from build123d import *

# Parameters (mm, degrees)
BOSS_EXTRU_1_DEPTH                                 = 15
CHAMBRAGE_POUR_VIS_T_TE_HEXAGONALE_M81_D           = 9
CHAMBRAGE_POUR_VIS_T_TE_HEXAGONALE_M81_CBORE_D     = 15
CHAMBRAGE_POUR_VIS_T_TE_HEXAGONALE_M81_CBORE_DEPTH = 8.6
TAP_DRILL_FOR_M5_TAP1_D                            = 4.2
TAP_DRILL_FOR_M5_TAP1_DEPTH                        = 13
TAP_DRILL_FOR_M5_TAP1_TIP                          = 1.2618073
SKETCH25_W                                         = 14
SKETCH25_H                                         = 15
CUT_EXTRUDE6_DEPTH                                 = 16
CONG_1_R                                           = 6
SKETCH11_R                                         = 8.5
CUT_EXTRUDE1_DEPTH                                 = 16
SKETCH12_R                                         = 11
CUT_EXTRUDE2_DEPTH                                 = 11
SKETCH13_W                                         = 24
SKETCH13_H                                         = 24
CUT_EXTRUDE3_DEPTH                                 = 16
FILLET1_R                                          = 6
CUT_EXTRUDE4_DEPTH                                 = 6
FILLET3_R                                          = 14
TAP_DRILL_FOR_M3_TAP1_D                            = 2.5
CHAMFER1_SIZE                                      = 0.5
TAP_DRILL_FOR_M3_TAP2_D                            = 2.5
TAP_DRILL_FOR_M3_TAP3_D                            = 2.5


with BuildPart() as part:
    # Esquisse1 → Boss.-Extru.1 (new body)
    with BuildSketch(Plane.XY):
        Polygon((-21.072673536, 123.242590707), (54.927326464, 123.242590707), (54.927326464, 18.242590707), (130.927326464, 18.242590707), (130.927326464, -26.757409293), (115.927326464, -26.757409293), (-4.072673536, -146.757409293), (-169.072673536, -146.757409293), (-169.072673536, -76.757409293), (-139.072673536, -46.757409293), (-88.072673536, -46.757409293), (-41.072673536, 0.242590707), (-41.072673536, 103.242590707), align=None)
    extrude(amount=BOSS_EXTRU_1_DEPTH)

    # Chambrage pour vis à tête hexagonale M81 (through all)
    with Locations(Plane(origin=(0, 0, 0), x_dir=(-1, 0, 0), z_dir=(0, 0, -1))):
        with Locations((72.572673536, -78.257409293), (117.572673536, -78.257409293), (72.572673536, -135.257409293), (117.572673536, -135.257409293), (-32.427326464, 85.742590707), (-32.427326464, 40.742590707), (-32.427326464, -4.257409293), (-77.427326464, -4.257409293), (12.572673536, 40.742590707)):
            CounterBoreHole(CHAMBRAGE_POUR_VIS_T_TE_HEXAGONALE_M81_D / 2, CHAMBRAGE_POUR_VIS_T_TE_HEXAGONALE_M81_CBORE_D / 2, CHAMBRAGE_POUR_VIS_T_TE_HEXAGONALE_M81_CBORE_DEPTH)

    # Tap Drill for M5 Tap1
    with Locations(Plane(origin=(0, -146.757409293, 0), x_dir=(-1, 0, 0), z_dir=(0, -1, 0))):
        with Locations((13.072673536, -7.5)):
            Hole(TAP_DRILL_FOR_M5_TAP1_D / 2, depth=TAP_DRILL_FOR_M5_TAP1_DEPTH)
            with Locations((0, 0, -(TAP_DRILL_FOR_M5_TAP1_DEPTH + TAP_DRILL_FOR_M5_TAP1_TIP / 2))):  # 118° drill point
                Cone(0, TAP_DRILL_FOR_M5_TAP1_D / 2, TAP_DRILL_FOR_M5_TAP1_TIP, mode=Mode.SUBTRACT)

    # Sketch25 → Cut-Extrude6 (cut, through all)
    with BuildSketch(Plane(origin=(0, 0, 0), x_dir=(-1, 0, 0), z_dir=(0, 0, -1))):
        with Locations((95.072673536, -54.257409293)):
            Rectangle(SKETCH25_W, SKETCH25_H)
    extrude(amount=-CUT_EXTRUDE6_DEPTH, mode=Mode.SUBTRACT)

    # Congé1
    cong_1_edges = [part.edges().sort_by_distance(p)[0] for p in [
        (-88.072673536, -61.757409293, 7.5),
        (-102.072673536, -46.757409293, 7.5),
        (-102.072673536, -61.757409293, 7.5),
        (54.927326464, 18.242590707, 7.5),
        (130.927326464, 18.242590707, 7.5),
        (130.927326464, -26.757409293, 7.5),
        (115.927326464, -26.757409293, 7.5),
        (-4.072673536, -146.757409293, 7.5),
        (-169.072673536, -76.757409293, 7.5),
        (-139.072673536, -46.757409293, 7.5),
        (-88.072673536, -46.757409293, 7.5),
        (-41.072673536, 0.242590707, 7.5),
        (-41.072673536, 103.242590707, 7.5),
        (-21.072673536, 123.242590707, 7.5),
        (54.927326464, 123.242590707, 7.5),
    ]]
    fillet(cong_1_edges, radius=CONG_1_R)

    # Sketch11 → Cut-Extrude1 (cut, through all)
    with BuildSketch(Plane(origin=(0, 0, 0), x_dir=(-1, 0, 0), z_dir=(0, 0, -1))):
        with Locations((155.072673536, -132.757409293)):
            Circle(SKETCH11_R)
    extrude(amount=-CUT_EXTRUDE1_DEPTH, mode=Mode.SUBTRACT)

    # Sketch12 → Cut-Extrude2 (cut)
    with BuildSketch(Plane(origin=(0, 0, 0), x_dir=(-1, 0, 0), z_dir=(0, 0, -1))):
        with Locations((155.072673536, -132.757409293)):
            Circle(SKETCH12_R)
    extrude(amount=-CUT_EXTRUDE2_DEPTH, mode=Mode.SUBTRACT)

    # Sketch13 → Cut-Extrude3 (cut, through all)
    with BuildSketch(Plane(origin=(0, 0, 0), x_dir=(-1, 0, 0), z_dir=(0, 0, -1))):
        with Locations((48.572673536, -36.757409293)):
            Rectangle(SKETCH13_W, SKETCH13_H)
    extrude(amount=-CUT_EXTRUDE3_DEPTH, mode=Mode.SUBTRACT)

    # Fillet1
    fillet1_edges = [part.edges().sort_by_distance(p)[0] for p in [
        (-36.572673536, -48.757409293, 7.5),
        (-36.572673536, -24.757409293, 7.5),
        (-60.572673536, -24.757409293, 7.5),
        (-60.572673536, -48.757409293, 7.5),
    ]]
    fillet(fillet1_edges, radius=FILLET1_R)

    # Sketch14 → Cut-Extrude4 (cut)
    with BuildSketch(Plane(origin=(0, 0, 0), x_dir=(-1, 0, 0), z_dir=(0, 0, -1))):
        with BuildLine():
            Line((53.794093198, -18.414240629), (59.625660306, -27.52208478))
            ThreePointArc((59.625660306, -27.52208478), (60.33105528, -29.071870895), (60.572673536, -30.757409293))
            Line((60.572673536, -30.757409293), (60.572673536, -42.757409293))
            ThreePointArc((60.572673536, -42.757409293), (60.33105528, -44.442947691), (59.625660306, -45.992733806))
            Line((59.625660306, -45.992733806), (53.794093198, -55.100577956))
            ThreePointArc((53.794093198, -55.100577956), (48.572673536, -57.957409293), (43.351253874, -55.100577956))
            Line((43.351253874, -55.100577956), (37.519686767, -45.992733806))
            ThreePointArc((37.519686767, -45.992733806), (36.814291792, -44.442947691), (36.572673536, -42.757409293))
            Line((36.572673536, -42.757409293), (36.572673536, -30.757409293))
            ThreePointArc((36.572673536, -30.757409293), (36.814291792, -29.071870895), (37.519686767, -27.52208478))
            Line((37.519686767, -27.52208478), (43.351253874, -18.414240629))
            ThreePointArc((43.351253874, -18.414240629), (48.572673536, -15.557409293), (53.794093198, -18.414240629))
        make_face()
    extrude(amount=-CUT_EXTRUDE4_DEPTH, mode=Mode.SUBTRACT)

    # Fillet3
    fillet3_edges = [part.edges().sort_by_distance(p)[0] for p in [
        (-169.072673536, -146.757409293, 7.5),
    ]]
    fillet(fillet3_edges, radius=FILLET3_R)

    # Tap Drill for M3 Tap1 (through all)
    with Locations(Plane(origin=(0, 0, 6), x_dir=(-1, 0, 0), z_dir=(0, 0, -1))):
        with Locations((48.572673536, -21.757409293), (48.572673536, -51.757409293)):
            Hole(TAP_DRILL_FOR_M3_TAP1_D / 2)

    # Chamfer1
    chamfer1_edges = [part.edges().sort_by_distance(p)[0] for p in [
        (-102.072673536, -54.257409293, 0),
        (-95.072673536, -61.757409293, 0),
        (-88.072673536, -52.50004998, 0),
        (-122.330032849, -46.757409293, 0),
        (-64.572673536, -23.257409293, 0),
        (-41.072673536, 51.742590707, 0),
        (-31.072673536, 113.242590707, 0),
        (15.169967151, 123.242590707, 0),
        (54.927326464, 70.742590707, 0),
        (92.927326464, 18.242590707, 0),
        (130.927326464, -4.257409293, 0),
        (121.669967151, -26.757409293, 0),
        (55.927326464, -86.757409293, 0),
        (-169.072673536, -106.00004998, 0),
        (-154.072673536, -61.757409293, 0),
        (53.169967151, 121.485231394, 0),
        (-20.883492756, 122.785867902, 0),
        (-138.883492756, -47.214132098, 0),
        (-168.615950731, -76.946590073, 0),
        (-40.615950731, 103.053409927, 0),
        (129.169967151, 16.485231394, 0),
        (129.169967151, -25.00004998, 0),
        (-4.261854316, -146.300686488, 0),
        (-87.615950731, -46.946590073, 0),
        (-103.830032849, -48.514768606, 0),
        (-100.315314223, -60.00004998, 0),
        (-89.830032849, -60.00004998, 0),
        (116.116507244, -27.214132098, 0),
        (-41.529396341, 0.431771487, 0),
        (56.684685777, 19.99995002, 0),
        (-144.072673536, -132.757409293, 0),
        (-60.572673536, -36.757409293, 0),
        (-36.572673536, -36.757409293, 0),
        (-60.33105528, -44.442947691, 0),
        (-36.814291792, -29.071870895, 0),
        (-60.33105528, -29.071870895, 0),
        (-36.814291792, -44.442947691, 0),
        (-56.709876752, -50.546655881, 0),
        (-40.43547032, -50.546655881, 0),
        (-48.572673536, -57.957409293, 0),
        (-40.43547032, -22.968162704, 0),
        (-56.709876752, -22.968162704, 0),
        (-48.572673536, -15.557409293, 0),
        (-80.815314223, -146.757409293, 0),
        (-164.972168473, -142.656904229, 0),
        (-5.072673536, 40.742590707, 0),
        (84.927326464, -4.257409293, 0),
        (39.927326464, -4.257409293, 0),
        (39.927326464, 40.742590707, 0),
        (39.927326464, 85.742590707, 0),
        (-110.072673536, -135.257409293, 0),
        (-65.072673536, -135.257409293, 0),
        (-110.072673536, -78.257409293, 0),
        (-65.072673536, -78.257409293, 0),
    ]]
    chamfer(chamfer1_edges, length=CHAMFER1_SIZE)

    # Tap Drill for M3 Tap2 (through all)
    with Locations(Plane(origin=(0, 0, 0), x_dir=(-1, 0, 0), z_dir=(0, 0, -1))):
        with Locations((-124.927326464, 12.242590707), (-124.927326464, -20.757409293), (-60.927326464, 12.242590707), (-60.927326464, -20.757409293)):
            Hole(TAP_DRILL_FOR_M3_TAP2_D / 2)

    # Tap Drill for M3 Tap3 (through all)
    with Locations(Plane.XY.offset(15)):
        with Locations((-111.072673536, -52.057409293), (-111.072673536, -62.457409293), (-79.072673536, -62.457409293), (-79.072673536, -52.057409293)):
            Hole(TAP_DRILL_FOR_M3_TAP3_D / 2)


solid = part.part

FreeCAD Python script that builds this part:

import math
import FreeCAD as App
import Part
import Sketcher
from FreeCAD import Vector


def edges_at(feature, points):
    """Names of the edges that pass closest to the given points."""
    edges = feature.Shape.Edges
    near = lambda p: min(range(len(edges)), key=lambda i: edges[i].distToShape(Part.Vertex(*p))[0])
    return sorted({f"Edge{near(p) + 1}" for p in points})

doc = App.newDocument("Part")
body = doc.addObject("PartDesign::Body", "Body")

# Sketch on XY plane
sketch1 = doc.addObject("Sketcher::SketchObject", "Sketch")
body.addObject(sketch1)
sketch1.AttachmentSupport = (doc.XY_Plane, [""])
sketch1.MapMode = "FlatFace"
sketch1.addGeometry(Part.LineSegment(Vector(54.927326, 123.242591, 0), Vector(-21.072674, 123.242591, 0)), False)
sketch1.addGeometry(Part.LineSegment(Vector(-21.072674, 123.242591, 0), Vector(-41.072674, 103.242591, 0)), False)
sketch1.addGeometry(Part.LineSegment(Vector(-41.072674, 103.242591, 0), Vector(-41.072674, 0.242591, 0)), False)
sketch1.addGeometry(Part.LineSegment(Vector(-41.072674, 0.242591, 0), Vector(-88.072674, -46.757409, 0)), False)
sketch1.addGeometry(Part.LineSegment(Vector(-88.072674, -46.757409, 0), Vector(-139.072674, -46.757409, 0)), False)
sketch1.addGeometry(Part.LineSegment(Vector(-139.072674, -46.757409, 0), Vector(-169.072674, -76.757409, 0)), False)
sketch1.addGeometry(Part.LineSegment(Vector(-169.072674, -76.757409, 0), Vector(-169.072674, -146.757409, 0)), False)
sketch1.addGeometry(Part.LineSegment(Vector(-169.072674, -146.757409, 0), Vector(-4.072674, -146.757409, 0)), False)
sketch1.addGeometry(Part.LineSegment(Vector(-4.072674, -146.757409, 0), Vector(115.927326, -26.757409, 0)), False)
sketch1.addGeometry(Part.LineSegment(Vector(115.927326, -26.757409, 0), Vector(130.927326, -26.757409, 0)), False)
sketch1.addGeometry(Part.LineSegment(Vector(130.927326, -26.757409, 0), Vector(130.927326, 18.242591, 0)), False)
sketch1.addGeometry(Part.LineSegment(Vector(130.927326, 18.242591, 0), Vector(54.927326, 18.242591, 0)), False)
sketch1.addGeometry(Part.LineSegment(Vector(54.927326, 18.242591, 0), Vector(54.927326, 123.242591, 0)), False)
sketch1.addConstraint(Sketcher.Constraint("Coincident", 0, 2, 1, 1))
sketch1.addConstraint(Sketcher.Constraint("Coincident", 1, 2, 2, 1))
sketch1.addConstraint(Sketcher.Constraint("Coincident", 2, 2, 3, 1))
sketch1.addConstraint(Sketcher.Constraint("Coincident", 3, 2, 4, 1))
sketch1.addConstraint(Sketcher.Constraint("Coincident", 4, 2, 5, 1))
sketch1.addConstraint(Sketcher.Constraint("Coincident", 5, 2, 6, 1))
sketch1.addConstraint(Sketcher.Constraint("Coincident", 6, 2, 7, 1))
sketch1.addConstraint(Sketcher.Constraint("Coincident", 7, 2, 8, 1))
sketch1.addConstraint(Sketcher.Constraint("Coincident", 8, 2, 9, 1))
sketch1.addConstraint(Sketcher.Constraint("Coincident", 9, 2, 10, 1))
sketch1.addConstraint(Sketcher.Constraint("Coincident", 10, 2, 11, 1))
sketch1.addConstraint(Sketcher.Constraint("Coincident", 11, 2, 12, 1))
sketch1.addConstraint(Sketcher.Constraint("Coincident", 12, 2, 0, 1))
sketch1.addConstraint(Sketcher.Constraint("Horizontal", 0))
sketch1.addConstraint(Sketcher.Constraint("Vertical", 2))
sketch1.addConstraint(Sketcher.Constraint("Horizontal", 4))
sketch1.addConstraint(Sketcher.Constraint("Vertical", 6))
sketch1.addConstraint(Sketcher.Constraint("Horizontal", 7))
sketch1.addConstraint(Sketcher.Constraint("Horizontal", 9))
sketch1.addConstraint(Sketcher.Constraint("Vertical", 10))
sketch1.addConstraint(Sketcher.Constraint("Horizontal", 11))
sketch1.addConstraint(Sketcher.Constraint("Vertical", 12))
sketch1.addConstraint(Sketcher.Constraint("Parallel", 1, 3))
sketch1.addConstraint(Sketcher.Constraint("Parallel", 3, 5))
sketch1.addConstraint(Sketcher.Constraint("Parallel", 5, 8))
sketch1.addConstraint(Sketcher.Constraint("Equal", 0, 11))
sketch1.addConstraint(Sketcher.Constraint("DistanceX", 0, 2, 0, 1, 76.0))
sketch1.addConstraint(Sketcher.Constraint("DistanceX", 4, 2, 4, 1, 51.0))
sketch1.addConstraint(Sketcher.Constraint("DistanceX", 7, 1, 7, 2, 165.0))
sketch1.addConstraint(Sketcher.Constraint("DistanceX", 9, 1, 9, 2, 15.0))
sketch1.addConstraint(Sketcher.Constraint("DistanceY", 2, 2, 2, 1, 103.0))
sketch1.addConstraint(Sketcher.Constraint("DistanceY", 6, 2, 6, 1, 70.0))
sketch1.addConstraint(Sketcher.Constraint("DistanceY", 10, 1, 10, 2, 45.0))
sketch1.addConstraint(Sketcher.Constraint("DistanceY", 12, 1, 12, 2, 105.0))
sketch1.addConstraint(Sketcher.Constraint("DistanceX", 1, 2, 0, 2, 20.0))
sketch1.addConstraint(Sketcher.Constraint("DistanceX", 3, 2, 2, 2, 47.0))
sketch1.addConstraint(Sketcher.Constraint("DistanceX", 5, 2, 4, 2, 30.0))
sketch1.addConstraint(Sketcher.Constraint("DistanceY", -1, 1, 0, 2, 123.242591))
sketch1.addConstraint(Sketcher.Constraint("DistanceX", 0, 2, -1, 1, 21.072674))
pad1 = doc.addObject("PartDesign::Pad", "Pad")
body.addObject(pad1)
pad1.Profile = sketch1
pad1.Length = 15

# Sketch on XY plane
sketch2 = doc.addObject("Sketcher::SketchObject", "Sketch001")
body.addObject(sketch2)
sketch2.AttachmentSupport = (doc.XY_Plane, [""])
sketch2.MapMode = "FlatFace"
sketch2.addGeometry(Part.Circle(Vector(-72.572674, -78.257409, 0), Vector(0, 0, 1), 4.5), False)
sketch2.addGeometry(Part.Circle(Vector(-117.572674, -78.257409, 0), Vector(0, 0, 1), 4.5), False)
sketch2.addGeometry(Part.Circle(Vector(-72.572674, -135.257409, 0), Vector(0, 0, 1), 4.5), False)
sketch2.addGeometry(Part.Circle(Vector(-117.572674, -135.257409, 0), Vector(0, 0, 1), 4.5), False)
sketch2.addGeometry(Part.Circle(Vector(32.427326, 85.742591, 0), Vector(0, 0, 1), 4.5), False)
sketch2.addGeometry(Part.Circle(Vector(32.427326, 40.742591, 0), Vector(0, 0, 1), 4.5), False)
sketch2.addGeometry(Part.Circle(Vector(32.427326, -4.257409, 0), Vector(0, 0, 1), 4.5), False)
sketch2.addGeometry(Part.Circle(Vector(77.427326, -4.257409, 0), Vector(0, 0, 1), 4.5), False)
sketch2.addGeometry(Part.Circle(Vector(-12.572674, 40.742591, 0), Vector(0, 0, 1), 4.5), False)
sketch2.addConstraint(Sketcher.Constraint("Equal", 0, 1))
sketch2.addConstraint(Sketcher.Constraint("Equal", 1, 2))
sketch2.addConstraint(Sketcher.Constraint("Equal", 2, 3))
sketch2.addConstraint(Sketcher.Constraint("Equal", 3, 4))
sketch2.addConstraint(Sketcher.Constraint("Equal", 4, 5))
sketch2.addConstraint(Sketcher.Constraint("Equal", 5, 6))
sketch2.addConstraint(Sketcher.Constraint("Equal", 6, 7))
sketch2.addConstraint(Sketcher.Constraint("Equal", 7, 8))
sketch2.addConstraint(Sketcher.Constraint("Horizontal", 0, 3, 1, 3))
sketch2.addConstraint(Sketcher.Constraint("Horizontal", 2, 3, 3, 3))
sketch2.addConstraint(Sketcher.Constraint("Horizontal", 6, 3, 7, 3))
sketch2.addConstraint(Sketcher.Constraint("Horizontal", 5, 3, 8, 3))
sketch2.addConstraint(Sketcher.Constraint("Vertical", 0, 3, 2, 3))
sketch2.addConstraint(Sketcher.Constraint("Vertical", 1, 3, 3, 3))
sketch2.addConstraint(Sketcher.Constraint("Vertical", 4, 3, 5, 3))
sketch2.addConstraint(Sketcher.Constraint("Vertical", 5, 3, 6, 3))
sketch2.addConstraint(Sketcher.Constraint("Diameter", 0, 9.0))
sketch2.addConstraint(Sketcher.Constraint("DistanceX", 1, 3, 0, 3, 45.0))
sketch2.addConstraint(Sketcher.Constraint("DistanceY", 2, 3, 0, 3, 57.0))
sketch2.addConstraint(Sketcher.Constraint("DistanceX", 0, 3, 4, 3, 105.0))
sketch2.addConstraint(Sketcher.Constraint("DistanceY", 0, 3, 4, 3, 164.0))
sketch2.addConstraint(Sketcher.Constraint("DistanceY", 5, 3, 4, 3, 45.0))
sketch2.addConstraint(Sketcher.Constraint("DistanceY", 6, 3, 5, 3, 45.0))
sketch2.addConstraint(Sketcher.Constraint("DistanceX", 6, 3, 7, 3, 45.0))
sketch2.addConstraint(Sketcher.Constraint("DistanceX", 8, 3, 5, 3, 45.0))
sketch2.addConstraint(Sketcher.Constraint("DistanceY", 0, 3, -1, 1, 78.257409))
sketch2.addConstraint(Sketcher.Constraint("DistanceX", 0, 3, -1, 1, 72.572674))
doc.recompute()
hole = doc.addObject("PartDesign::Hole", "Hole")
body.addObject(hole)
hole.Profile = sketch2
hole.ThreadType = "None"
hole.Diameter = 9
hole.DepthType = "ThroughAll"
hole.HoleCutType = "Counterbore"
hole.HoleCutDiameter = 15
hole.HoleCutDepth = 8.6
hole.Reversed = True

# Sketch on XZ plane
sketch3 = doc.addObject("Sketcher::SketchObject", "Sketch002")
body.addObject(sketch3)
sketch3.AttachmentSupport = (doc.XZ_Plane, [""])
sketch3.MapMode = "FlatFace"
sketch3.AttachmentOffset = App.Placement(Vector(0, 0, 146.757409), App.Rotation())
sketch3.addGeometry(Part.Circle(Vector(-13.072674, 7.5, 0), Vector(0, 0, 1), 2.1), False)
sketch3.addConstraint(Sketcher.Constraint("Diameter", 0, 4.2))
sketch3.addConstraint(Sketcher.Constraint("DistanceY", -1, 1, 0, 3, 7.5))
sketch3.addConstraint(Sketcher.Constraint("DistanceX", 0, 3, -1, 1, 13.072674))
doc.recompute()
hole2 = doc.addObject("PartDesign::Hole", "Hole001")
body.addObject(hole2)
hole2.Profile = sketch3
hole2.ThreadType = "None"
hole2.Diameter = 4.2
hole2.DepthType = "Dimension"
hole2.Depth = 13
hole2.DrillPoint = "Angled"
hole2.DrillPointAngle = 118

# Sketch on XY plane
sketch4 = doc.addObject("Sketcher::SketchObject", "Sketch003")
body.addObject(sketch4)
sketch4.AttachmentSupport = (doc.XY_Plane, [""])
sketch4.MapMode = "FlatFace"
sketch4.addGeometry(Part.LineSegment(Vector(-88.072674, -46.757409, 0), Vector(-88.072674, -61.757409, 0)), False)
sketch4.addGeometry(Part.LineSegment(Vector(-88.072674, -61.757409, 0), Vector(-102.072674, -61.757409, 0)), False)
sketch4.addGeometry(Part.LineSegment(Vector(-102.072674, -61.757409, 0), Vector(-102.072674, -46.757409, 0)), False)
sketch4.addGeometry(Part.LineSegment(Vector(-102.072674, -46.757409, 0), Vector(-88.072674, -46.757409, 0)), False)
sketch4.addConstraint(Sketcher.Constraint("Coincident", 0, 2, 1, 1))
sketch4.addConstraint(Sketcher.Constraint("Coincident", 1, 2, 2, 1))
sketch4.addConstraint(Sketcher.Constraint("Coincident", 2, 2, 3, 1))
sketch4.addConstraint(Sketcher.Constraint("Coincident", 3, 2, 0, 1))
sketch4.addConstraint(Sketcher.Constraint("Vertical", 0))
sketch4.addConstraint(Sketcher.Constraint("Horizontal", 1))
sketch4.addConstraint(Sketcher.Constraint("Vertical", 2))
sketch4.addConstraint(Sketcher.Constraint("Horizontal", 3))
sketch4.addConstraint(Sketcher.Constraint("DistanceX", 1, 2, 1, 1, 14.0))
sketch4.addConstraint(Sketcher.Constraint("DistanceY", 0, 2, 0, 1, 15.0))
sketch4.addConstraint(Sketcher.Constraint("DistanceY", 0, 2, -1, 1, 61.757409))
sketch4.addConstraint(Sketcher.Constraint("DistanceX", 0, 2, -1, 1, 88.072674))
pocket1 = doc.addObject("PartDesign::Pocket", "Pocket")
body.addObject(pocket1)
pocket1.Profile = sketch4
pocket1.Type = "ThroughAll"
pocket1.Reversed = True
doc.recompute()

fillet = doc.addObject("PartDesign::Fillet", "Fillet")
body.addObject(fillet)
fillet.Base = (pocket1, edges_at(pocket1, [
    (-88.073, -61.757, 7.5),
    (-102.073, -46.757, 7.5),
    (-102.073, -61.757, 7.5),
    (54.927, 18.243, 7.5),
    (130.927, 18.243, 7.5),
    (130.927, -26.757, 7.5),
    (115.927, -26.757, 7.5),
    (-4.073, -146.757, 7.5),
    (-169.073, -76.757, 7.5),
    (-139.073, -46.757, 7.5),
    (-88.073, -46.757, 7.5),
    (-41.073, 0.243, 7.5),
    (-41.073, 103.243, 7.5),
    (-21.073, 123.243, 7.5),
    (54.927, 123.243, 7.5),
]))
fillet.Radius = 6

# Sketch on XY plane
sketch5 = doc.addObject("Sketcher::SketchObject", "Sketch004")
body.addObject(sketch5)
sketch5.AttachmentSupport = (doc.XY_Plane, [""])
sketch5.MapMode = "FlatFace"
sketch5.addGeometry(Part.Circle(Vector(-155.072674, -132.757409, 0), Vector(0, 0, 1), 8.5), False)
sketch5.addConstraint(Sketcher.Constraint("Diameter", 0, 17.0))
sketch5.addConstraint(Sketcher.Constraint("DistanceY", 0, 3, -1, 1, 132.757409))
sketch5.addConstraint(Sketcher.Constraint("DistanceX", 0, 3, -1, 1, 155.072674))
pocket2 = doc.addObject("PartDesign::Pocket", "Pocket001")
body.addObject(pocket2)
pocket2.Profile = sketch5
pocket2.Type = "ThroughAll"
pocket2.Reversed = True

# Sketch on XY plane
sketch6 = doc.addObject("Sketcher::SketchObject", "Sketch005")
body.addObject(sketch6)
sketch6.AttachmentSupport = (doc.XY_Plane, [""])
sketch6.MapMode = "FlatFace"
sketch6.addGeometry(Part.Circle(Vector(-155.072674, -132.757409, 0), Vector(0, 0, 1), 11), False)
sketch6.addConstraint(Sketcher.Constraint("Diameter", 0, 22.0))
sketch6.addConstraint(Sketcher.Constraint("DistanceY", 0, 3, -1, 1, 132.757409))
sketch6.addConstraint(Sketcher.Constraint("DistanceX", 0, 3, -1, 1, 155.072674))
pocket3 = doc.addObject("PartDesign::Pocket", "Pocket002")
body.addObject(pocket3)
pocket3.Profile = sketch6
pocket3.Length = 11
pocket3.Reversed = True

# Sketch on XY plane
sketch7 = doc.addObject("Sketcher::SketchObject", "Sketch006")
body.addObject(sketch7)
sketch7.AttachmentSupport = (doc.XY_Plane, [""])
sketch7.MapMode = "FlatFace"
sketch7.addGeometry(Part.LineSegment(Vector(-36.572674, -24.757409, 0), Vector(-36.572674, -48.757409, 0)), False)
sketch7.addGeometry(Part.LineSegment(Vector(-36.572674, -48.757409, 0), Vector(-60.572674, -48.757409, 0)), False)
sketch7.addGeometry(Part.LineSegment(Vector(-60.572674, -48.757409, 0), Vector(-60.572674, -24.757409, 0)), False)
sketch7.addGeometry(Part.LineSegment(Vector(-60.572674, -24.757409, 0), Vector(-36.572674, -24.757409, 0)), False)
sketch7.addConstraint(Sketcher.Constraint("Coincident", 0, 2, 1, 1))
sketch7.addConstraint(Sketcher.Constraint("Coincident", 1, 2, 2, 1))
sketch7.addConstraint(Sketcher.Constraint("Coincident", 2, 2, 3, 1))
sketch7.addConstraint(Sketcher.Constraint("Coincident", 3, 2, 0, 1))
sketch7.addConstraint(Sketcher.Constraint("Vertical", 0))
sketch7.addConstraint(Sketcher.Constraint("Horizontal", 1))
sketch7.addConstraint(Sketcher.Constraint("Vertical", 2))
sketch7.addConstraint(Sketcher.Constraint("Horizontal", 3))
sketch7.addConstraint(Sketcher.Constraint("Equal", 3, 0))
sketch7.addConstraint(Sketcher.Constraint("DistanceX", 1, 2, 1, 1, 24.0))
sketch7.addConstraint(Sketcher.Constraint("DistanceY", 0, 2, -1, 1, 48.757409))
sketch7.addConstraint(Sketcher.Constraint("DistanceX", 0, 2, -1, 1, 36.572674))
pocket4 = doc.addObject("PartDesign::Pocket", "Pocket003")
body.addObject(pocket4)
pocket4.Profile = sketch7
pocket4.Type = "ThroughAll"
pocket4.Reversed = True
doc.recompute()

fillet2 = doc.addObject("PartDesign::Fillet", "Fillet001")
body.addObject(fillet2)
fillet2.Base = (pocket4, edges_at(pocket4, [
    (-36.573, -48.757, 7.5),
    (-36.573, -24.757, 7.5),
    (-60.573, -24.757, 7.5),
    (-60.573, -48.757, 7.5),
]))
fillet2.Radius = 6

# Sketch on XY plane
sketch8 = doc.addObject("Sketcher::SketchObject", "Sketch007")
body.addObject(sketch8)
sketch8.AttachmentSupport = (doc.XY_Plane, [""])
sketch8.MapMode = "FlatFace"
sketch8.addGeometry(Part.LineSegment(Vector(-59.62566, -27.522085, 0), Vector(-53.794093, -18.414241, 0)), False)
sketch8.addGeometry(Part.ArcOfCircle(Part.Circle(Vector(-48.572674, -21.757409, 0), Vector(0, 0, 1), 6.2), math.radians(32.630608), math.radians(147.369392)), False)
sketch8.addGeometry(Part.LineSegment(Vector(-43.351254, -18.414241, 0), Vector(-37.519687, -27.522085, 0)), False)
sketch8.addGeometry(Part.ArcOfCircle(Part.Circle(Vector(-42.572674, -30.757409, 0), Vector(0, 0, 1), 6), math.radians(0), math.radians(32.630608)), False)
sketch8.addGeometry(Part.LineSegment(Vector(-36.572674, -30.757409, 0), Vector(-36.572674, -42.757409, 0)), False)
sketch8.addGeometry(Part.ArcOfCircle(Part.Circle(Vector(-42.572674, -42.757409, 0), Vector(0, 0, 1), 6), math.radians(-32.630608), math.radians(0)), False)
sketch8.addGeometry(Part.LineSegment(Vector(-37.519687, -45.992734, 0), Vector(-43.351254, -55.100578, 0)), False)
sketch8.addGeometry(Part.ArcOfCircle(Part.Circle(Vector(-48.572674, -51.757409, 0), Vector(0, 0, 1), 6.2), math.radians(-147.369392), math.radians(-32.630608)), False)
sketch8.addGeometry(Part.LineSegment(Vector(-53.794093, -55.100578, 0), Vector(-59.62566, -45.992734, 0)), False)
sketch8.addGeometry(Part.ArcOfCircle(Part.Circle(Vector(-54.572674, -42.757409, 0), Vector(0, 0, 1), 6), math.radians(180), math.radians(212.630608)), False)
sketch8.addGeometry(Part.LineSegment(Vector(-60.572674, -42.757409, 0), Vector(-60.572674, -30.757409, 0)), False)
sketch8.addGeometry(Part.ArcOfCircle(Part.Circle(Vector(-54.572674, -30.757409, 0), Vector(0, 0, 1), 6), math.radians(147.369392), math.radians(180)), False)
sketch8.addConstraint(Sketcher.Constraint("Tangent", 0, 2, 1, 2))
sketch8.addConstraint(Sketcher.Constraint("Tangent", 1, 1, 2, 1))
sketch8.addConstraint(Sketcher.Constraint("Tangent", 2, 2, 3, 2))
sketch8.addConstraint(Sketcher.Constraint("Tangent", 3, 1, 4, 1))
sketch8.addConstraint(Sketcher.Constraint("Tangent", 4, 2, 5, 2))
sketch8.addConstraint(Sketcher.Constraint("Tangent", 5, 1, 6, 1))
sketch8.addConstraint(Sketcher.Constraint("Tangent", 6, 2, 7, 2))
sketch8.addConstraint(Sketcher.Constraint("Tangent", 7, 1, 8, 1))
sketch8.addConstraint(Sketcher.Constraint("Tangent", 8, 2, 9, 2))
sketch8.addConstraint(Sketcher.Constraint("Tangent", 9, 1, 10, 1))
sketch8.addConstraint(Sketcher.Constraint("Tangent", 10, 2, 11, 2))
sketch8.addConstraint(Sketcher.Constraint("Tangent", 11, 1, 0, 1))
sketch8.addConstraint(Sketcher.Constraint("Vertical", 4))
sketch8.addConstraint(Sketcher.Constraint("Vertical", 10))
sketch8.addConstraint(Sketcher.Constraint("Equal", 3, 5))
sketch8.addConstraint(Sketcher.Constraint("Equal", 1, 7))
sketch8.addConstraint(Sketcher.Constraint("Equal", 5, 9))
sketch8.addConstraint(Sketcher.Constraint("Equal", 9, 11))
sketch8.addConstraint(Sketcher.Constraint("Parallel", 0, 6))
sketch8.addConstraint(Sketcher.Constraint("Parallel", 2, 8))
sketch8.addConstraint(Sketcher.Constraint("Horizontal", 5, 3, 9, 3))
sketch8.addConstraint(Sketcher.Constraint("Horizontal", 3, 3, 11, 3))
sketch8.addConstraint(Sketcher.Constraint("Horizontal", 0, 2, 1, 1))
sketch8.addConstraint(Sketcher.Constraint("Radius", 3, 6.0))
sketch8.addConstraint(Sketcher.Constraint("Radius", 1, 6.2))
sketch8.addConstraint(Sketcher.Constraint("DistanceY", 4, 2, 4, 1, 12.0))
sketch8.addConstraint(Sketcher.Constraint("DistanceX", 1, 3, 3, 3, 6.0))
sketch8.addConstraint(Sketcher.Constraint("DistanceY", 3, 3, 1, 3, 9.0))
sketch8.addConstraint(Sketcher.Constraint("DistanceY", 1, 3, -1, 1, 21.757409))
sketch8.addConstraint(Sketcher.Constraint("DistanceX", 8, 2, -1, 1, 59.62566))
pocket5 = doc.addObject("PartDesign::Pocket", "Pocket004")
body.addObject(pocket5)
pocket5.Profile = sketch8
pocket5.Length = 6
pocket5.Reversed = True
doc.recompute()

fillet3 = doc.addObject("PartDesign::Fillet", "Fillet002")
body.addObject(fillet3)
fillet3.Base = (pocket5, edges_at(pocket5, [(-169.073, -146.757, 7.5)]))
fillet3.Radius = 14

# Sketch on XY plane
sketch9 = doc.addObject("Sketcher::SketchObject", "Sketch008")
body.addObject(sketch9)
sketch9.AttachmentSupport = (doc.XY_Plane, [""])
sketch9.MapMode = "FlatFace"
sketch9.AttachmentOffset = App.Placement(Vector(0, 0, 6), App.Rotation())
sketch9.addGeometry(Part.Circle(Vector(-48.572674, -21.757409, 0), Vector(0, 0, 1), 1.25), False)
sketch9.addGeometry(Part.Circle(Vector(-48.572674, -51.757409, 0), Vector(0, 0, 1), 1.25), False)
sketch9.addConstraint(Sketcher.Constraint("Equal", 0, 1))
sketch9.addConstraint(Sketcher.Constraint("Vertical", 0, 3, 1, 3))
sketch9.addConstraint(Sketcher.Constraint("Diameter", 0, 2.5))
sketch9.addConstraint(Sketcher.Constraint("DistanceY", 1, 3, 0, 3, 30.0))
sketch9.addConstraint(Sketcher.Constraint("DistanceY", 0, 3, -1, 1, 21.757409))
sketch9.addConstraint(Sketcher.Constraint("DistanceX", 0, 3, -1, 1, 48.572674))
doc.recompute()
hole3 = doc.addObject("PartDesign::Hole", "Hole002")
body.addObject(hole3)
hole3.Profile = sketch9
hole3.ThreadType = "None"
hole3.Diameter = 2.5
hole3.DepthType = "ThroughAll"
hole3.Reversed = True
doc.recompute()

chamfer = doc.addObject("PartDesign::Chamfer", "Chamfer")
body.addObject(chamfer)
chamfer.Base = (hole3, edges_at(hole3, [
    (-102.073, -54.257, 0),
    (-95.073, -61.757, 0),
    (-88.073, -52.5, 0),
    (-122.33, -46.757, 0),
    (-64.573, -23.257, 0),
    (-41.073, 51.743, 0),
    (-31.073, 113.243, 0),
    (15.17, 123.243, 0),
    (54.927, 70.743, 0),
    (92.927, 18.243, 0),
    (130.927, -4.257, 0),
    (121.67, -26.757, 0),
    (55.927, -86.757, 0),
    (-169.073, -106, 0),
    (-154.073, -61.757, 0),
    (53.17, 121.485, 0),
    (-20.883, 122.786, 0),
    (-138.883, -47.214, 0),
    (-168.616, -76.947, 0),
    (-40.616, 103.053, 0),
    (129.17, 16.485, 0),
    (129.17, -25, 0),
    (-4.262, -146.301, 0),
    (-87.616, -46.947, 0),
    (-103.83, -48.515, 0),
    (-100.315, -60, 0),
    (-89.83, -60, 0),
    (116.117, -27.214, 0),
    (-41.529, 0.432, 0),
    (56.685, 20, 0),
    (-144.073, -132.757, 0),
    (-60.573, -36.757, 0),
    (-36.573, -36.757, 0),
    (-60.331, -44.443, 0),
    (-36.814, -29.072, 0),
    (-60.331, -29.072, 0),
    (-36.814, -44.443, 0),
    (-56.71, -50.547, 0),
    (-40.435, -50.547, 0),
    (-48.573, -57.957, 0),
    (-40.435, -22.968, 0),
    (-56.71, -22.968, 0),
    (-48.573, -15.557, 0),
    (-80.815, -146.757, 0),
    (-164.972, -142.657, 0),
    (-5.073, 40.743, 0),
    (84.927, -4.257, 0),
    (39.927, -4.257, 0),
    (39.927, 40.743, 0),
    (39.927, 85.743, 0),
    (-110.073, -135.257, 0),
    (-65.073, -135.257, 0),
    (-110.073, -78.257, 0),
    (-65.073, -78.257, 0),
]))
chamfer.Size = 0.5

# Sketch on XY plane
sketch10 = doc.addObject("Sketcher::SketchObject", "Sketch009")
body.addObject(sketch10)
sketch10.AttachmentSupport = (doc.XY_Plane, [""])
sketch10.MapMode = "FlatFace"
sketch10.addGeometry(Part.Circle(Vector(124.927326, 12.242591, 0), Vector(0, 0, 1), 1.25), False)
sketch10.addGeometry(Part.Circle(Vector(124.927326, -20.757409, 0), Vector(0, 0, 1), 1.25), False)
sketch10.addGeometry(Part.Circle(Vector(60.927326, 12.242591, 0), Vector(0, 0, 1), 1.25), False)
sketch10.addGeometry(Part.Circle(Vector(60.927326, -20.757409, 0), Vector(0, 0, 1), 1.25), False)
sketch10.addConstraint(Sketcher.Constraint("Equal", 0, 1))
sketch10.addConstraint(Sketcher.Constraint("Equal", 1, 2))
sketch10.addConstraint(Sketcher.Constraint("Equal", 2, 3))
sketch10.addConstraint(Sketcher.Constraint("Horizontal", 0, 3, 2, 3))
sketch10.addConstraint(Sketcher.Constraint("Horizontal", 1, 3, 3, 3))
sketch10.addConstraint(Sketcher.Constraint("Vertical", 0, 3, 1, 3))
sketch10.addConstraint(Sketcher.Constraint("Vertical", 2, 3, 3, 3))
sketch10.addConstraint(Sketcher.Constraint("Diameter", 0, 2.5))
sketch10.addConstraint(Sketcher.Constraint("DistanceY", 1, 3, 0, 3, 33.0))
sketch10.addConstraint(Sketcher.Constraint("DistanceX", 2, 3, 0, 3, 64.0))
sketch10.addConstraint(Sketcher.Constraint("DistanceY", -1, 1, 0, 3, 12.242591))
sketch10.addConstraint(Sketcher.Constraint("DistanceX", -1, 1, 0, 3, 124.927326))
doc.recompute()
hole4 = doc.addObject("PartDesign::Hole", "Hole003")
body.addObject(hole4)
hole4.Profile = sketch10
hole4.ThreadType = "None"
hole4.Diameter = 2.5
hole4.DepthType = "ThroughAll"
hole4.Reversed = True

# Sketch on XY plane
sketch11 = doc.addObject("Sketcher::SketchObject", "Sketch010")
body.addObject(sketch11)
sketch11.AttachmentSupport = (doc.XY_Plane, [""])
sketch11.MapMode = "FlatFace"
sketch11.AttachmentOffset = App.Placement(Vector(0, 0, 15), App.Rotation())
sketch11.addGeometry(Part.Circle(Vector(-111.072674, -52.057409, 0), Vector(0, 0, 1), 1.25), False)
sketch11.addGeometry(Part.Circle(Vector(-111.072674, -62.457409, 0), Vector(0, 0, 1), 1.25), False)
sketch11.addGeometry(Part.Circle(Vector(-79.072674, -62.457409, 0), Vector(0, 0, 1), 1.25), False)
sketch11.addGeometry(Part.Circle(Vector(-79.072674, -52.057409, 0), Vector(0, 0, 1), 1.25), False)
sketch11.addConstraint(Sketcher.Constraint("Equal", 0, 1))
sketch11.addConstraint(Sketcher.Constraint("Equal", 1, 2))
sketch11.addConstraint(Sketcher.Constraint("Equal", 2, 3))
sketch11.addConstraint(Sketcher.Constraint("Horizontal", 1, 3, 2, 3))
sketch11.addConstraint(Sketcher.Constraint("Horizontal", 0, 3, 3, 3))
sketch11.addConstraint(Sketcher.Constraint("Vertical", 0, 3, 1, 3))
sketch11.addConstraint(Sketcher.Constraint("Vertical", 2, 3, 3, 3))
sketch11.addConstraint(Sketcher.Constraint("Diameter", 0, 2.5))
sketch11.addConstraint(Sketcher.Constraint("DistanceX", 1, 3, 2, 3, 32.0))
sketch11.addConstraint(Sketcher.Constraint("DistanceY", 1, 3, 0, 3, 10.4))
sketch11.addConstraint(Sketcher.Constraint("DistanceY", 0, 3, -1, 1, 52.057409))
sketch11.addConstraint(Sketcher.Constraint("DistanceX", 0, 3, -1, 1, 111.072674))
doc.recompute()
hole5 = doc.addObject("PartDesign::Hole", "Hole004")
body.addObject(hole5)
hole5.Profile = sketch11
hole5.ThreadType = "None"
hole5.Diameter = 2.5
hole5.DepthType = "ThroughAll"

doc.recompute()
